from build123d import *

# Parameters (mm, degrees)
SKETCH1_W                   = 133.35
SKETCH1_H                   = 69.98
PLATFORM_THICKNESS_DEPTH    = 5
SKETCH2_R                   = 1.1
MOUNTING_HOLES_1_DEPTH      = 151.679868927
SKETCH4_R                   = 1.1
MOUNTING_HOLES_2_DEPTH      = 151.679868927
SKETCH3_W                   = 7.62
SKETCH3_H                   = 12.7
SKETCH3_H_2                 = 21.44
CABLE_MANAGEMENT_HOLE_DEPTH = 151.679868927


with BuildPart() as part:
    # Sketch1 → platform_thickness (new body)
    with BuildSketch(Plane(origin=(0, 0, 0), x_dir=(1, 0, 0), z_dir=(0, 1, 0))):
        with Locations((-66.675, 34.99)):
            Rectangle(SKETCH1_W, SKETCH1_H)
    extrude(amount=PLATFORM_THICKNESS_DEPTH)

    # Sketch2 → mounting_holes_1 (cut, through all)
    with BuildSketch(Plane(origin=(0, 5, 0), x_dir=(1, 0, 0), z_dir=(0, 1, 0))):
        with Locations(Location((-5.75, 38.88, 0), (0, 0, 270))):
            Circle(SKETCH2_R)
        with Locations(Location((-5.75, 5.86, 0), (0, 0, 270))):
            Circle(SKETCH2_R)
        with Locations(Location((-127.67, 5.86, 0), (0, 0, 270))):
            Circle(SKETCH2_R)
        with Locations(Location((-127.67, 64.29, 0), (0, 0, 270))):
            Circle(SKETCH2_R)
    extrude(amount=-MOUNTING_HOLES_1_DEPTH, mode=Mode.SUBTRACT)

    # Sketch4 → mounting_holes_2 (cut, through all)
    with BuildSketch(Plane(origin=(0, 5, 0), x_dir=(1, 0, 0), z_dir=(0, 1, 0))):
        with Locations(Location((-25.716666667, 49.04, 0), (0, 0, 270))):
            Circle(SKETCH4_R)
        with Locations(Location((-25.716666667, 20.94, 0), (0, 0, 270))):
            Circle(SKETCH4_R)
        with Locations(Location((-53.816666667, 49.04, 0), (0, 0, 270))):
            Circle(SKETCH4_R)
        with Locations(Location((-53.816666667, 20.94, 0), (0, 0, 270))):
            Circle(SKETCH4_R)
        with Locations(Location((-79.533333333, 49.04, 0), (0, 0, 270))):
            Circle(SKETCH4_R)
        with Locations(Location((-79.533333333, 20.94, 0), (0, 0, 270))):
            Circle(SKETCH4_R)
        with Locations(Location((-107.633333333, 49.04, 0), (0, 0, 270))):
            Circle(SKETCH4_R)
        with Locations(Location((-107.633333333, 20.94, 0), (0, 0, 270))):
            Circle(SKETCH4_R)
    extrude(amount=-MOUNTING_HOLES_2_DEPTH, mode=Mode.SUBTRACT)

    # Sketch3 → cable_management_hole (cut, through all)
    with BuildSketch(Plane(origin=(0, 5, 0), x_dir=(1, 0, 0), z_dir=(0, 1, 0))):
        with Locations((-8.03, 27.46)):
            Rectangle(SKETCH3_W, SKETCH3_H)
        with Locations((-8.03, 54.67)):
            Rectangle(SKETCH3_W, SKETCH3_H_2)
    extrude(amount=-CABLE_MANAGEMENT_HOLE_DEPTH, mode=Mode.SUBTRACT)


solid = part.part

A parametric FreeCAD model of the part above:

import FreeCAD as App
import Part
import Sketcher
Q = App.Units.Quantity

doc = App.newDocument("Part")
body = doc.addObject("PartDesign::Body", "Body")

# Sketch on XZ plane
sketch1 = doc.addObject("Sketcher::SketchObject", "Sketch")
body.addObject(sketch1)
sketch1.AttachmentSupport = (doc.XZ_Plane, [""])
sketch1.MapMode = "FlatFace"
sketch1.addGeometry([
    Part.LineSegment(App.Vector(-133, -70, 0), App.Vector(-133, 0, 0)),
    Part.LineSegment(App.Vector(-133, 0, 0), App.Vector(0, 0, 0)),
    Part.LineSegment(App.Vector(0, 0, 0), App.Vector(0, -70, 0)),
    Part.LineSegment(App.Vector(0, -70, 0), App.Vector(-133, -70, 0)),
], False)
sketch1.addConstraint([
    Sketcher.Constraint("Coincident", 0, 2, 1, 1),
    Sketcher.Constraint("Coincident", 1, 2, 2, 1),
    Sketcher.Constraint("Coincident", 2, 2, 3, 1),
    Sketcher.Constraint("Coincident", 3, 2, 0, 1),
    Sketcher.Constraint("Vertical", 0),
    Sketcher.Constraint("Horizontal", 1),
    Sketcher.Constraint("Vertical", 2),
    Sketcher.Constraint("Horizontal", 3),
    Sketcher.Constraint("Coincident", 1, 2, -1, 1),
    Sketcher.Constraint("DistanceX", 1, 1, 1, 2, Q("5.25 in")),
    Sketcher.Constraint("DistanceY", 0, 1, 0, 2, 69.98),
])
pad1 = doc.addObject("PartDesign::Pad", "Pad")
body.addObject(pad1)
pad1.Profile = sketch1
pad1.Length = 5
pad1.Reversed = True

# Sketch on XZ plane
sketch2 = doc.addObject("Sketcher::SketchObject", "Sketch001")
body.addObject(sketch2)
sketch2.AttachmentSupport = (doc.XZ_Plane, [""])
sketch2.MapMode = "FlatFace"
sketch2.AttachmentOffset = App.Placement(App.Vector(0, 0, -5), App.Rotation())
sketch2.addGeometry([
    Part.Circle(App.Vector(-5.8, -38.9, 0), App.Vector(0, 0, 1), 1.1),
    Part.Circle(App.Vector(-5.8, -5.9, 0), App.Vector(0, 0, 1), 1.1),
    Part.Circle(App.Vector(-127.7, -5.9, 0), App.Vector(0, 0, 1), 1.1),
    Part.Circle(App.Vector(-127.7, -64.3, 0), App.Vector(0, 0, 1), 1.1),
], False)
sketch2.addConstraint([
    Sketcher.Constraint("Equal", 0, 1),
    Sketcher.Constraint("Equal", 1, 2),
    Sketcher.Constraint("Equal", 2, 3),
    Sketcher.Constraint("Horizontal", 1, 3, 2, 3),
    Sketcher.Constraint("Vertical", 0, 3, 1, 3),
    Sketcher.Constraint("Vertical", 2, 3, 3, 3),
    Sketcher.Constraint("DistanceY", 0, 3, 1, 3, Q("1.3 in")),
    Sketcher.Constraint("DistanceX", 2, 3, 1, 3, Q("4.8 in")),
    Sketcher.Constraint("Diameter", 0, 2.2),
    Sketcher.Constraint("DistanceX", 0, 3, -1, 1, 5.75),
    Sketcher.Constraint("DistanceY", 0, 3, -1, 1, 38.88),
    Sketcher.Constraint("DistanceY", 3, 3, -1, 1, 64.29),
])
pocket1 = doc.addObject("PartDesign::Pocket", "Pocket")
body.addObject(pocket1)
pocket1.Profile = sketch2
pocket1.Type = "ThroughAll"
pocket1.Reversed = True

# Sketch on XZ plane
sketch3 = doc.addObject("Sketcher::SketchObject", "Sketch002")
body.addObject(sketch3)
sketch3.AttachmentSupport = (doc.XZ_Plane, [""])
sketch3.MapMode = "FlatFace"
sketch3.AttachmentOffset = App.Placement(App.Vector(0, 0, -5), App.Rotation())
sketch3.addGeometry([
    Part.Circle(App.Vector(-25.7, -49, 0), App.Vector(0, 0, 1), 1.1),  # 0
    Part.Circle(App.Vector(-25.7, -20.9, 0), App.Vector(0, 0, 1), 1.1),  # 1
    Part.Circle(App.Vector(-53.8, -49, 0), App.Vector(0, 0, 1), 1.1),  # 2
    Part.Circle(App.Vector(-53.8, -20.9, 0), App.Vector(0, 0, 1), 1.1),  # 3
    Part.Circle(App.Vector(-79.5, -49, 0), App.Vector(0, 0, 1), 1.1),  # 4
    Part.Circle(App.Vector(-79.5, -20.9, 0), App.Vector(0, 0, 1), 1.1),  # 5
    Part.Circle(App.Vector(-107.6, -49, 0), App.Vector(0, 0, 1), 1.1),  # 6
    Part.Circle(App.Vector(-107.6, -20.9, 0), App.Vector(0, 0, 1), 1.1),  # 7
], False)
sketch3.addConstraint([
    Sketcher.Constraint("Equal", 0, 1),
    Sketcher.Constraint("Equal", 1, 2),
    Sketcher.Constraint("Equal", 2, 3),
    Sketcher.Constraint("Equal", 3, 4),
    Sketcher.Constraint("Equal", 4, 5),
    Sketcher.Constraint("Equal", 5, 6),
    Sketcher.Constraint("Equal", 6, 7),
    Sketcher.Constraint("Horizontal", 0, 3, 2, 3),
    Sketcher.Constraint("Horizontal", 1, 3, 3, 3),
    Sketcher.Constraint("Horizontal", 2, 3, 4, 3),
    Sketcher.Constraint("Horizontal", 3, 3, 5, 3),
    Sketcher.Constraint("Horizontal", 4, 3, 6, 3),
    Sketcher.Constraint("Horizontal", 5, 3, 7, 3),
    Sketcher.Constraint("Vertical", 0, 3, 1, 3),
    Sketcher.Constraint("Vertical", 2, 3, 3, 3),
    Sketcher.Constraint("Vertical", 4, 3, 5, 3),
    Sketcher.Constraint("Vertical", 6, 3, 7, 3),
    Sketcher.Constraint("Diameter", 0, 2.2),
    Sketcher.Constraint("DistanceY", 0, 3, -1, 1, 49.04),
    Sketcher.Constraint("DistanceY", 1, 3, -1, 1, 20.94),
    Sketcher.Constraint("DistanceX", 2, 3, 0, 3, 28.1),
    Sketcher.Constraint("DistanceX", 6, 3, 4, 3, 28.1),
    Sketcher.Constraint("DistanceX", 0, 3, -1, 1, 25.716667),
    Sketcher.Constraint("DistanceX", 4, 3, -1, 1, 79.533333),
])
pocket2 = doc.addObject("PartDesign::Pocket", "Pocket001")
body.addObject(pocket2)
pocket2.Profile = sketch3
pocket2.Type = "ThroughAll"
pocket2.Reversed = True

# Sketch on XZ plane
sketch4 = doc.addObject("Sketcher::SketchObject", "Sketch003")
body.addObject(sketch4)
sketch4.AttachmentSupport = (doc.XZ_Plane, [""])
sketch4.MapMode = "FlatFace"
sketch4.AttachmentOffset = App.Placement(App.Vector(0, 0, -5), App.Rotation())
sketch4.addGeometry([
    Part.LineSegment(App.Vector(-12, -34, 0), App.Vector(-12, -21, 0)),  # 0
    Part.LineSegment(App.Vector(-12, -21, 0), App.Vector(-4, -21, 0)),  # 1
    Part.LineSegment(App.Vector(-4, -21, 0), App.Vector(-4, -34, 0)),  # 2
    Part.LineSegment(App.Vector(-4, -34, 0), App.Vector(-12, -34, 0)),  # 3
    Part.LineSegment(App.Vector(-12, -65, 0), App.Vector(-12, -44, 0)),  # 4
    Part.LineSegment(App.Vector(-12, -44, 0), App.Vector(-4, -44, 0)),  # 5
    Part.LineSegment(App.Vector(-4, -44, 0), App.Vector(-4, -65, 0)),  # 6
    Part.LineSegment(App.Vector(-4, -65, 0), App.Vector(-12, -65, 0)),  # 7
], False)
sketch4.addConstraint([
    Sketcher.Constraint("Coincident", 0, 2, 1, 1),
    Sketcher.Constraint("Coincident", 1, 2, 2, 1),
    Sketcher.Constraint("Coincident", 2, 2, 3, 1),
    Sketcher.Constraint("Coincident", 3, 2, 0, 1),
    Sketcher.Constraint("Coincident", 4, 2, 5, 1),
    Sketcher.Constraint("Coincident", 5, 2, 6, 1),
    Sketcher.Constraint("Coincident", 6, 2, 7, 1),
    Sketcher.Constraint("Coincident", 7, 2, 4, 1),
    Sketcher.Constraint("Vertical", 0),
    Sketcher.Constraint("Horizontal", 1),
    Sketcher.Constraint("Vertical", 2),
    Sketcher.Constraint("Horizontal", 3),
    Sketcher.Constraint("Vertical", 4),
    Sketcher.Constraint("Horizontal", 5),
    Sketcher.Constraint("Vertical", 6),
    Sketcher.Constraint("Horizontal", 7),
    Sketcher.Constraint("Vertical", 3, 2, 4, 2),
    Sketcher.Constraint("Vertical", 2, 2, 5, 2),
    Sketcher.Constraint("DistanceX", 1, 1, 1, 2, Q("0.3 in")),
    Sketcher.Constraint("DistanceY", 0, 1, 0, 2, Q("0.5 in")),
    Sketcher.Constraint("DistanceY", 4, 1, 4, 2, 21.44),
    Sketcher.Constraint("DistanceX", 0, 2, -1, 1, 11.84),
    Sketcher.Constraint("DistanceY", 0, 2, -1, 1, 21.11),
    Sketcher.Constraint("DistanceY", 4, 2, -1, 1, 43.95),
])
pocket3 = doc.addObject("PartDesign::Pocket", "Pocket002")
body.addObject(pocket3)
pocket3.Profile = sketch4
pocket3.Type = "ThroughAll"
pocket3.Reversed = True

doc.recompute()
